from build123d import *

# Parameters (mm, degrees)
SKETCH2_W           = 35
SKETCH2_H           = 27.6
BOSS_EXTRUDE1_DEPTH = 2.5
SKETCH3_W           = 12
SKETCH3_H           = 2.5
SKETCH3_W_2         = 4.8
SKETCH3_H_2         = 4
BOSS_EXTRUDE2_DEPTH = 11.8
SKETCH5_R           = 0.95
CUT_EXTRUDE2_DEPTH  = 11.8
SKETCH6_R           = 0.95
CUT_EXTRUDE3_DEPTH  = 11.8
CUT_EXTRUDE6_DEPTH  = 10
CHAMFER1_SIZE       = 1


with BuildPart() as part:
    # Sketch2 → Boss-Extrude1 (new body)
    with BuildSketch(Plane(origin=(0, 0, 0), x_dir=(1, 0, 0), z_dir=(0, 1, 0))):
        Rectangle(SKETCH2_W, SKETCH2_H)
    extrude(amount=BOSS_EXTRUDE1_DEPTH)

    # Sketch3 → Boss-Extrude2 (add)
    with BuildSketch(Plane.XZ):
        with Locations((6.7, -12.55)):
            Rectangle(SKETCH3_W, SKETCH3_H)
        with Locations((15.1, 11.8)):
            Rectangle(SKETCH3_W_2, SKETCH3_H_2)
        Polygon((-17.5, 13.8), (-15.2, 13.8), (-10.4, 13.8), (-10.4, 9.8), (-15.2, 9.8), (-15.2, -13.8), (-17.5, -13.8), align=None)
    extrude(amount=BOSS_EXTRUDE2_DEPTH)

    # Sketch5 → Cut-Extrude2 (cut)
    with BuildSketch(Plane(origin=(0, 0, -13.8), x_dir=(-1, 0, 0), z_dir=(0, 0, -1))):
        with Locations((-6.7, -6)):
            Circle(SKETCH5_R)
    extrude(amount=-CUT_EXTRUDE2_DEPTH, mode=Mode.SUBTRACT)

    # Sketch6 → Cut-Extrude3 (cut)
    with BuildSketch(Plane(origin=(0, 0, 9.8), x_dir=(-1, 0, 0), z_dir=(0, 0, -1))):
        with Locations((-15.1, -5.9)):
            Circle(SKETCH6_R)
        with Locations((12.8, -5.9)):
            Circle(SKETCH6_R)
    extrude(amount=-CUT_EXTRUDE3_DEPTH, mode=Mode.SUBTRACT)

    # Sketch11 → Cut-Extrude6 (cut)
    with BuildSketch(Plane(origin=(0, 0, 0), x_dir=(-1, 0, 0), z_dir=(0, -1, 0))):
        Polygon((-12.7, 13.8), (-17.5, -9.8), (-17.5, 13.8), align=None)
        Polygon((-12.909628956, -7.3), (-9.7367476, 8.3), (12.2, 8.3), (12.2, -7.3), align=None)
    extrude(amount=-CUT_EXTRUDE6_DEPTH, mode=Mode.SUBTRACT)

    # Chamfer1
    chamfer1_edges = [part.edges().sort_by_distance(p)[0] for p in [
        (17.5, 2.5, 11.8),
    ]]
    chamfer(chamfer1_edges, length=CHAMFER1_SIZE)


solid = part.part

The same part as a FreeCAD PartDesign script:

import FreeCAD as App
import Part
import Sketcher

V = App.Vector


def edges_at(feature, points):
    """Names of the edges that pass closest to the given points."""
    edges = feature.Shape.Edges
    near = lambda p: min(range(len(edges)), key=lambda i: edges[i].distToShape(Part.Vertex(*p))[0])
    return sorted({f"Edge{near(p) + 1}" for p in points})


def add_polygon(sketch, points):
    """Adds a closed chain of lines whose ends are joined by coincident constraints."""
    first, n = sketch.GeometryCount, len(points)
    for a, b in zip(points, points[1:] + points[:1]):
        sketch.addGeometry(Part.LineSegment(App.Vector(*a, 0), App.Vector(*b, 0)), False)
    for i in range(n):
        sketch.addConstraint(Sketcher.Constraint("Coincident", first + i, 2, first + (i + 1) % n, 1))

doc = App.newDocument("Part")
body = doc.addObject("PartDesign::Body", "Body")

# Sketch on XZ plane
sketch1 = body.newObject("Sketcher::SketchObject", "Sketch")
sketch1.AttachmentSupport = (doc.getObject("XZ_Plane"), [""])
sketch1.MapMode = "FlatFace"
add_polygon(sketch1, [(-17.5, -13.8), (-17.5, 13.8), (17.5, 13.8), (17.5, -13.8)])  # lines 0-3
sketch1.addConstraint([
    Sketcher.Constraint("Vertical", 0),
    Sketcher.Constraint("Horizontal", 1),
    Sketcher.Constraint("Vertical", 2),
    Sketcher.Constraint("Horizontal", 3),
    Sketcher.Constraint("Symmetric", 0, 2, 2, 2, -1, 1),
    Sketcher.Constraint("DistanceX", 1, 1, 1, 2, 35.0),
    Sketcher.Constraint("DistanceY", 0, 1, 0, 2, 27.6),
])
pad1 = body.newObject("PartDesign::Pad", "Pad")
pad1.Profile = sketch1
pad1.Length = 2.5
pad1.Reversed = True

# Sketch on XZ plane
sketch2 = body.newObject("Sketcher::SketchObject", "Sketch001")
sketch2.AttachmentSupport = (doc.getObject("XZ_Plane"), [""])
sketch2.MapMode = "FlatFace"
add_polygon(sketch2, [(0.7, -11.3), (0.7, -13.8), (12.7, -13.8), (12.7, -11.3)])  # lines 0-3
add_polygon(sketch2, [(12.7, 13.8), (12.7, 9.8), (17.5, 9.8), (17.5, 13.8)])  # lines 4-7
add_polygon(sketch2, [(-10.4, 13.8), (-17.5, 13.8), (-17.5, -13.8), (-15.2, -13.8), (-15.2, 9.8), (-10.4, 9.8)])  # lines 8-13
sketch2.addConstraint([
    Sketcher.Constraint("Vertical", 0),
    Sketcher.Constraint("Horizontal", 1),
    Sketcher.Constraint("Vertical", 2),
    Sketcher.Constraint("Horizontal", 3),
    Sketcher.Constraint("Vertical", 4),
    Sketcher.Constraint("Horizontal", 5),
    Sketcher.Constraint("Vertical", 6),
    Sketcher.Constraint("Horizontal", 7),
    Sketcher.Constraint("Horizontal", 8),
    Sketcher.Constraint("Vertical", 9),
    Sketcher.Constraint("Horizontal", 10),
    Sketcher.Constraint("Vertical", 11),
    Sketcher.Constraint("Horizontal", 12),
    Sketcher.Constraint("Vertical", 13),
    Sketcher.Constraint("Symmetric", 6, 2, 9, 2, -1, 1),
    Sketcher.Constraint("Symmetric", 1, 2, 7, 2, -1),
    Sketcher.Constraint("Horizontal", 7, 2, 8, 2),
    Sketcher.Constraint("Horizontal", 5, 2, 11, 2),
    Sketcher.Constraint("Equal", 7, 12),
    Sketcher.Constraint("DistanceX", 1, 1, 1, 2, 12.0),
    Sketcher.Constraint("DistanceY", 4, 2, 4, 1, 4.0),
    Sketcher.Constraint("DistanceX", 5, 1, 5, 2, 4.8),
    Sketcher.Constraint("DistanceX", 8, 2, 8, 1, 7.1),
    Sketcher.Constraint("DistanceY", 0, 2, 0, 1, 2.5),
    Sketcher.Constraint("DistanceY", 9, 2, 9, 1, 27.6),
    Sketcher.Constraint("DistanceX", 8, 2, 6, 2, 35.0),
])
pad2 = body.newObject("PartDesign::Pad", "Pad001")
pad2.Profile = sketch2
pad2.Length = 11.8

# Sketch on XY plane
sketch3 = body.newObject("Sketcher::SketchObject", "Sketch002")
sketch3.AttachmentSupport = (doc.getObject("XY_Plane"), [""])
sketch3.MapMode = "FlatFace"
sketch3.AttachmentOffset = App.Placement(V(0, 0, -13.8), App.Rotation())
sketch3.addGeometry(Part.Circle(V(6.7, -6, 0), V(0, 0, 1), 0.95), False)
sketch3.addConstraint([
    Sketcher.Constraint("Diameter", 0, 1.9),
    Sketcher.Constraint("DistanceY", 0, 3, -1, 1, 6.0),
    Sketcher.Constraint("DistanceX", -1, 1, 0, 3, 6.7),
])
pocket1 = body.newObject("PartDesign::Pocket", "Pocket")
pocket1.Profile = sketch3
pocket1.Length = 11.8
pocket1.Reversed = True

# Sketch on XY plane
sketch4 = body.newObject("Sketcher::SketchObject", "Sketch003")
sketch4.AttachmentSupport = (doc.getObject("XY_Plane"), [""])
sketch4.MapMode = "FlatFace"
sketch4.AttachmentOffset = App.Placement(V(0, 0, 9.8), App.Rotation())
sketch4.addGeometry([
    Part.Circle(V(15.1, -5.9, 0), V(0, 0, 1), 0.95),
    Part.Circle(V(-12.8, -5.9, 0), V(0, 0, 1), 0.95),
], False)
sketch4.addConstraint([
    Sketcher.Constraint("Equal", 0, 1),
    Sketcher.Constraint("Horizontal", 0, 3, 1, 3),
    Sketcher.Constraint("Diameter", 0, 1.9),
    Sketcher.Constraint("DistanceX", -1, 1, 0, 3, 15.1),
    Sketcher.Constraint("DistanceY", 0, 3, -1, 1, 5.9),
    Sketcher.Constraint("DistanceX", 1, 3, -1, 1, 12.8),
])
pocket2 = body.newObject("PartDesign::Pocket", "Pocket001")
pocket2.Profile = sketch4
pocket2.Length = 11.8
pocket2.Reversed = True

# Sketch on XZ plane
sketch5 = body.newObject("Sketcher::SketchObject", "Sketch004")
sketch5.AttachmentSupport = (doc.getObject("XZ_Plane"), [""])
sketch5.MapMode = "FlatFace"
add_polygon(sketch5, [(17.5, 9.8), (12.7, -13.8), (17.5, -13.8)])  # lines 0-2
add_polygon(sketch5, [(9.736748, -8.3), (12.909629, 7.3), (-12.2, 7.3), (-12.2, -8.3)])  # lines 3-6
sketch5.addConstraint([
    Sketcher.Constraint("Horizontal", 1),
    Sketcher.Constraint("Vertical", 2),
    Sketcher.Constraint("Horizontal", 4),
    Sketcher.Constraint("Vertical", 5),
    Sketcher.Constraint("Horizontal", 6),
    Sketcher.Constraint("Parallel", 0, 3),
    Sketcher.Constraint("DistanceX", 1, 1, 1, 2, 4.8),
    Sketcher.Constraint("DistanceY", 2, 1, 2, 2, 23.6),
    Sketcher.Constraint("DistanceY", 5, 2, 5, 1, 15.6),
    Sketcher.Constraint("DistanceX", -1, 1, 0, 2, 12.7),
    Sketcher.Constraint("DistanceY", 0, 2, -1, 1, 13.8),
    Sketcher.Constraint("DistanceY", -1, 1, 3, 2, 7.3),
    Sketcher.Constraint("DistanceX", 4, 2, -1, 1, 12.2),
    Sketcher.Constraint("DistanceX", 4, 2, 4, 1, 25.109629),
])
pocket3 = body.newObject("PartDesign::Pocket", "Pocket002")
pocket3.Profile = sketch5
pocket3.Length = 10
doc.recompute()

chamfer = body.newObject("PartDesign::Chamfer", "Chamfer")
chamfer.Base = (pocket3, edges_at(pocket3, [(17.5, 2.5, 11.8)]))
chamfer.Size = 1

doc.recompute()
